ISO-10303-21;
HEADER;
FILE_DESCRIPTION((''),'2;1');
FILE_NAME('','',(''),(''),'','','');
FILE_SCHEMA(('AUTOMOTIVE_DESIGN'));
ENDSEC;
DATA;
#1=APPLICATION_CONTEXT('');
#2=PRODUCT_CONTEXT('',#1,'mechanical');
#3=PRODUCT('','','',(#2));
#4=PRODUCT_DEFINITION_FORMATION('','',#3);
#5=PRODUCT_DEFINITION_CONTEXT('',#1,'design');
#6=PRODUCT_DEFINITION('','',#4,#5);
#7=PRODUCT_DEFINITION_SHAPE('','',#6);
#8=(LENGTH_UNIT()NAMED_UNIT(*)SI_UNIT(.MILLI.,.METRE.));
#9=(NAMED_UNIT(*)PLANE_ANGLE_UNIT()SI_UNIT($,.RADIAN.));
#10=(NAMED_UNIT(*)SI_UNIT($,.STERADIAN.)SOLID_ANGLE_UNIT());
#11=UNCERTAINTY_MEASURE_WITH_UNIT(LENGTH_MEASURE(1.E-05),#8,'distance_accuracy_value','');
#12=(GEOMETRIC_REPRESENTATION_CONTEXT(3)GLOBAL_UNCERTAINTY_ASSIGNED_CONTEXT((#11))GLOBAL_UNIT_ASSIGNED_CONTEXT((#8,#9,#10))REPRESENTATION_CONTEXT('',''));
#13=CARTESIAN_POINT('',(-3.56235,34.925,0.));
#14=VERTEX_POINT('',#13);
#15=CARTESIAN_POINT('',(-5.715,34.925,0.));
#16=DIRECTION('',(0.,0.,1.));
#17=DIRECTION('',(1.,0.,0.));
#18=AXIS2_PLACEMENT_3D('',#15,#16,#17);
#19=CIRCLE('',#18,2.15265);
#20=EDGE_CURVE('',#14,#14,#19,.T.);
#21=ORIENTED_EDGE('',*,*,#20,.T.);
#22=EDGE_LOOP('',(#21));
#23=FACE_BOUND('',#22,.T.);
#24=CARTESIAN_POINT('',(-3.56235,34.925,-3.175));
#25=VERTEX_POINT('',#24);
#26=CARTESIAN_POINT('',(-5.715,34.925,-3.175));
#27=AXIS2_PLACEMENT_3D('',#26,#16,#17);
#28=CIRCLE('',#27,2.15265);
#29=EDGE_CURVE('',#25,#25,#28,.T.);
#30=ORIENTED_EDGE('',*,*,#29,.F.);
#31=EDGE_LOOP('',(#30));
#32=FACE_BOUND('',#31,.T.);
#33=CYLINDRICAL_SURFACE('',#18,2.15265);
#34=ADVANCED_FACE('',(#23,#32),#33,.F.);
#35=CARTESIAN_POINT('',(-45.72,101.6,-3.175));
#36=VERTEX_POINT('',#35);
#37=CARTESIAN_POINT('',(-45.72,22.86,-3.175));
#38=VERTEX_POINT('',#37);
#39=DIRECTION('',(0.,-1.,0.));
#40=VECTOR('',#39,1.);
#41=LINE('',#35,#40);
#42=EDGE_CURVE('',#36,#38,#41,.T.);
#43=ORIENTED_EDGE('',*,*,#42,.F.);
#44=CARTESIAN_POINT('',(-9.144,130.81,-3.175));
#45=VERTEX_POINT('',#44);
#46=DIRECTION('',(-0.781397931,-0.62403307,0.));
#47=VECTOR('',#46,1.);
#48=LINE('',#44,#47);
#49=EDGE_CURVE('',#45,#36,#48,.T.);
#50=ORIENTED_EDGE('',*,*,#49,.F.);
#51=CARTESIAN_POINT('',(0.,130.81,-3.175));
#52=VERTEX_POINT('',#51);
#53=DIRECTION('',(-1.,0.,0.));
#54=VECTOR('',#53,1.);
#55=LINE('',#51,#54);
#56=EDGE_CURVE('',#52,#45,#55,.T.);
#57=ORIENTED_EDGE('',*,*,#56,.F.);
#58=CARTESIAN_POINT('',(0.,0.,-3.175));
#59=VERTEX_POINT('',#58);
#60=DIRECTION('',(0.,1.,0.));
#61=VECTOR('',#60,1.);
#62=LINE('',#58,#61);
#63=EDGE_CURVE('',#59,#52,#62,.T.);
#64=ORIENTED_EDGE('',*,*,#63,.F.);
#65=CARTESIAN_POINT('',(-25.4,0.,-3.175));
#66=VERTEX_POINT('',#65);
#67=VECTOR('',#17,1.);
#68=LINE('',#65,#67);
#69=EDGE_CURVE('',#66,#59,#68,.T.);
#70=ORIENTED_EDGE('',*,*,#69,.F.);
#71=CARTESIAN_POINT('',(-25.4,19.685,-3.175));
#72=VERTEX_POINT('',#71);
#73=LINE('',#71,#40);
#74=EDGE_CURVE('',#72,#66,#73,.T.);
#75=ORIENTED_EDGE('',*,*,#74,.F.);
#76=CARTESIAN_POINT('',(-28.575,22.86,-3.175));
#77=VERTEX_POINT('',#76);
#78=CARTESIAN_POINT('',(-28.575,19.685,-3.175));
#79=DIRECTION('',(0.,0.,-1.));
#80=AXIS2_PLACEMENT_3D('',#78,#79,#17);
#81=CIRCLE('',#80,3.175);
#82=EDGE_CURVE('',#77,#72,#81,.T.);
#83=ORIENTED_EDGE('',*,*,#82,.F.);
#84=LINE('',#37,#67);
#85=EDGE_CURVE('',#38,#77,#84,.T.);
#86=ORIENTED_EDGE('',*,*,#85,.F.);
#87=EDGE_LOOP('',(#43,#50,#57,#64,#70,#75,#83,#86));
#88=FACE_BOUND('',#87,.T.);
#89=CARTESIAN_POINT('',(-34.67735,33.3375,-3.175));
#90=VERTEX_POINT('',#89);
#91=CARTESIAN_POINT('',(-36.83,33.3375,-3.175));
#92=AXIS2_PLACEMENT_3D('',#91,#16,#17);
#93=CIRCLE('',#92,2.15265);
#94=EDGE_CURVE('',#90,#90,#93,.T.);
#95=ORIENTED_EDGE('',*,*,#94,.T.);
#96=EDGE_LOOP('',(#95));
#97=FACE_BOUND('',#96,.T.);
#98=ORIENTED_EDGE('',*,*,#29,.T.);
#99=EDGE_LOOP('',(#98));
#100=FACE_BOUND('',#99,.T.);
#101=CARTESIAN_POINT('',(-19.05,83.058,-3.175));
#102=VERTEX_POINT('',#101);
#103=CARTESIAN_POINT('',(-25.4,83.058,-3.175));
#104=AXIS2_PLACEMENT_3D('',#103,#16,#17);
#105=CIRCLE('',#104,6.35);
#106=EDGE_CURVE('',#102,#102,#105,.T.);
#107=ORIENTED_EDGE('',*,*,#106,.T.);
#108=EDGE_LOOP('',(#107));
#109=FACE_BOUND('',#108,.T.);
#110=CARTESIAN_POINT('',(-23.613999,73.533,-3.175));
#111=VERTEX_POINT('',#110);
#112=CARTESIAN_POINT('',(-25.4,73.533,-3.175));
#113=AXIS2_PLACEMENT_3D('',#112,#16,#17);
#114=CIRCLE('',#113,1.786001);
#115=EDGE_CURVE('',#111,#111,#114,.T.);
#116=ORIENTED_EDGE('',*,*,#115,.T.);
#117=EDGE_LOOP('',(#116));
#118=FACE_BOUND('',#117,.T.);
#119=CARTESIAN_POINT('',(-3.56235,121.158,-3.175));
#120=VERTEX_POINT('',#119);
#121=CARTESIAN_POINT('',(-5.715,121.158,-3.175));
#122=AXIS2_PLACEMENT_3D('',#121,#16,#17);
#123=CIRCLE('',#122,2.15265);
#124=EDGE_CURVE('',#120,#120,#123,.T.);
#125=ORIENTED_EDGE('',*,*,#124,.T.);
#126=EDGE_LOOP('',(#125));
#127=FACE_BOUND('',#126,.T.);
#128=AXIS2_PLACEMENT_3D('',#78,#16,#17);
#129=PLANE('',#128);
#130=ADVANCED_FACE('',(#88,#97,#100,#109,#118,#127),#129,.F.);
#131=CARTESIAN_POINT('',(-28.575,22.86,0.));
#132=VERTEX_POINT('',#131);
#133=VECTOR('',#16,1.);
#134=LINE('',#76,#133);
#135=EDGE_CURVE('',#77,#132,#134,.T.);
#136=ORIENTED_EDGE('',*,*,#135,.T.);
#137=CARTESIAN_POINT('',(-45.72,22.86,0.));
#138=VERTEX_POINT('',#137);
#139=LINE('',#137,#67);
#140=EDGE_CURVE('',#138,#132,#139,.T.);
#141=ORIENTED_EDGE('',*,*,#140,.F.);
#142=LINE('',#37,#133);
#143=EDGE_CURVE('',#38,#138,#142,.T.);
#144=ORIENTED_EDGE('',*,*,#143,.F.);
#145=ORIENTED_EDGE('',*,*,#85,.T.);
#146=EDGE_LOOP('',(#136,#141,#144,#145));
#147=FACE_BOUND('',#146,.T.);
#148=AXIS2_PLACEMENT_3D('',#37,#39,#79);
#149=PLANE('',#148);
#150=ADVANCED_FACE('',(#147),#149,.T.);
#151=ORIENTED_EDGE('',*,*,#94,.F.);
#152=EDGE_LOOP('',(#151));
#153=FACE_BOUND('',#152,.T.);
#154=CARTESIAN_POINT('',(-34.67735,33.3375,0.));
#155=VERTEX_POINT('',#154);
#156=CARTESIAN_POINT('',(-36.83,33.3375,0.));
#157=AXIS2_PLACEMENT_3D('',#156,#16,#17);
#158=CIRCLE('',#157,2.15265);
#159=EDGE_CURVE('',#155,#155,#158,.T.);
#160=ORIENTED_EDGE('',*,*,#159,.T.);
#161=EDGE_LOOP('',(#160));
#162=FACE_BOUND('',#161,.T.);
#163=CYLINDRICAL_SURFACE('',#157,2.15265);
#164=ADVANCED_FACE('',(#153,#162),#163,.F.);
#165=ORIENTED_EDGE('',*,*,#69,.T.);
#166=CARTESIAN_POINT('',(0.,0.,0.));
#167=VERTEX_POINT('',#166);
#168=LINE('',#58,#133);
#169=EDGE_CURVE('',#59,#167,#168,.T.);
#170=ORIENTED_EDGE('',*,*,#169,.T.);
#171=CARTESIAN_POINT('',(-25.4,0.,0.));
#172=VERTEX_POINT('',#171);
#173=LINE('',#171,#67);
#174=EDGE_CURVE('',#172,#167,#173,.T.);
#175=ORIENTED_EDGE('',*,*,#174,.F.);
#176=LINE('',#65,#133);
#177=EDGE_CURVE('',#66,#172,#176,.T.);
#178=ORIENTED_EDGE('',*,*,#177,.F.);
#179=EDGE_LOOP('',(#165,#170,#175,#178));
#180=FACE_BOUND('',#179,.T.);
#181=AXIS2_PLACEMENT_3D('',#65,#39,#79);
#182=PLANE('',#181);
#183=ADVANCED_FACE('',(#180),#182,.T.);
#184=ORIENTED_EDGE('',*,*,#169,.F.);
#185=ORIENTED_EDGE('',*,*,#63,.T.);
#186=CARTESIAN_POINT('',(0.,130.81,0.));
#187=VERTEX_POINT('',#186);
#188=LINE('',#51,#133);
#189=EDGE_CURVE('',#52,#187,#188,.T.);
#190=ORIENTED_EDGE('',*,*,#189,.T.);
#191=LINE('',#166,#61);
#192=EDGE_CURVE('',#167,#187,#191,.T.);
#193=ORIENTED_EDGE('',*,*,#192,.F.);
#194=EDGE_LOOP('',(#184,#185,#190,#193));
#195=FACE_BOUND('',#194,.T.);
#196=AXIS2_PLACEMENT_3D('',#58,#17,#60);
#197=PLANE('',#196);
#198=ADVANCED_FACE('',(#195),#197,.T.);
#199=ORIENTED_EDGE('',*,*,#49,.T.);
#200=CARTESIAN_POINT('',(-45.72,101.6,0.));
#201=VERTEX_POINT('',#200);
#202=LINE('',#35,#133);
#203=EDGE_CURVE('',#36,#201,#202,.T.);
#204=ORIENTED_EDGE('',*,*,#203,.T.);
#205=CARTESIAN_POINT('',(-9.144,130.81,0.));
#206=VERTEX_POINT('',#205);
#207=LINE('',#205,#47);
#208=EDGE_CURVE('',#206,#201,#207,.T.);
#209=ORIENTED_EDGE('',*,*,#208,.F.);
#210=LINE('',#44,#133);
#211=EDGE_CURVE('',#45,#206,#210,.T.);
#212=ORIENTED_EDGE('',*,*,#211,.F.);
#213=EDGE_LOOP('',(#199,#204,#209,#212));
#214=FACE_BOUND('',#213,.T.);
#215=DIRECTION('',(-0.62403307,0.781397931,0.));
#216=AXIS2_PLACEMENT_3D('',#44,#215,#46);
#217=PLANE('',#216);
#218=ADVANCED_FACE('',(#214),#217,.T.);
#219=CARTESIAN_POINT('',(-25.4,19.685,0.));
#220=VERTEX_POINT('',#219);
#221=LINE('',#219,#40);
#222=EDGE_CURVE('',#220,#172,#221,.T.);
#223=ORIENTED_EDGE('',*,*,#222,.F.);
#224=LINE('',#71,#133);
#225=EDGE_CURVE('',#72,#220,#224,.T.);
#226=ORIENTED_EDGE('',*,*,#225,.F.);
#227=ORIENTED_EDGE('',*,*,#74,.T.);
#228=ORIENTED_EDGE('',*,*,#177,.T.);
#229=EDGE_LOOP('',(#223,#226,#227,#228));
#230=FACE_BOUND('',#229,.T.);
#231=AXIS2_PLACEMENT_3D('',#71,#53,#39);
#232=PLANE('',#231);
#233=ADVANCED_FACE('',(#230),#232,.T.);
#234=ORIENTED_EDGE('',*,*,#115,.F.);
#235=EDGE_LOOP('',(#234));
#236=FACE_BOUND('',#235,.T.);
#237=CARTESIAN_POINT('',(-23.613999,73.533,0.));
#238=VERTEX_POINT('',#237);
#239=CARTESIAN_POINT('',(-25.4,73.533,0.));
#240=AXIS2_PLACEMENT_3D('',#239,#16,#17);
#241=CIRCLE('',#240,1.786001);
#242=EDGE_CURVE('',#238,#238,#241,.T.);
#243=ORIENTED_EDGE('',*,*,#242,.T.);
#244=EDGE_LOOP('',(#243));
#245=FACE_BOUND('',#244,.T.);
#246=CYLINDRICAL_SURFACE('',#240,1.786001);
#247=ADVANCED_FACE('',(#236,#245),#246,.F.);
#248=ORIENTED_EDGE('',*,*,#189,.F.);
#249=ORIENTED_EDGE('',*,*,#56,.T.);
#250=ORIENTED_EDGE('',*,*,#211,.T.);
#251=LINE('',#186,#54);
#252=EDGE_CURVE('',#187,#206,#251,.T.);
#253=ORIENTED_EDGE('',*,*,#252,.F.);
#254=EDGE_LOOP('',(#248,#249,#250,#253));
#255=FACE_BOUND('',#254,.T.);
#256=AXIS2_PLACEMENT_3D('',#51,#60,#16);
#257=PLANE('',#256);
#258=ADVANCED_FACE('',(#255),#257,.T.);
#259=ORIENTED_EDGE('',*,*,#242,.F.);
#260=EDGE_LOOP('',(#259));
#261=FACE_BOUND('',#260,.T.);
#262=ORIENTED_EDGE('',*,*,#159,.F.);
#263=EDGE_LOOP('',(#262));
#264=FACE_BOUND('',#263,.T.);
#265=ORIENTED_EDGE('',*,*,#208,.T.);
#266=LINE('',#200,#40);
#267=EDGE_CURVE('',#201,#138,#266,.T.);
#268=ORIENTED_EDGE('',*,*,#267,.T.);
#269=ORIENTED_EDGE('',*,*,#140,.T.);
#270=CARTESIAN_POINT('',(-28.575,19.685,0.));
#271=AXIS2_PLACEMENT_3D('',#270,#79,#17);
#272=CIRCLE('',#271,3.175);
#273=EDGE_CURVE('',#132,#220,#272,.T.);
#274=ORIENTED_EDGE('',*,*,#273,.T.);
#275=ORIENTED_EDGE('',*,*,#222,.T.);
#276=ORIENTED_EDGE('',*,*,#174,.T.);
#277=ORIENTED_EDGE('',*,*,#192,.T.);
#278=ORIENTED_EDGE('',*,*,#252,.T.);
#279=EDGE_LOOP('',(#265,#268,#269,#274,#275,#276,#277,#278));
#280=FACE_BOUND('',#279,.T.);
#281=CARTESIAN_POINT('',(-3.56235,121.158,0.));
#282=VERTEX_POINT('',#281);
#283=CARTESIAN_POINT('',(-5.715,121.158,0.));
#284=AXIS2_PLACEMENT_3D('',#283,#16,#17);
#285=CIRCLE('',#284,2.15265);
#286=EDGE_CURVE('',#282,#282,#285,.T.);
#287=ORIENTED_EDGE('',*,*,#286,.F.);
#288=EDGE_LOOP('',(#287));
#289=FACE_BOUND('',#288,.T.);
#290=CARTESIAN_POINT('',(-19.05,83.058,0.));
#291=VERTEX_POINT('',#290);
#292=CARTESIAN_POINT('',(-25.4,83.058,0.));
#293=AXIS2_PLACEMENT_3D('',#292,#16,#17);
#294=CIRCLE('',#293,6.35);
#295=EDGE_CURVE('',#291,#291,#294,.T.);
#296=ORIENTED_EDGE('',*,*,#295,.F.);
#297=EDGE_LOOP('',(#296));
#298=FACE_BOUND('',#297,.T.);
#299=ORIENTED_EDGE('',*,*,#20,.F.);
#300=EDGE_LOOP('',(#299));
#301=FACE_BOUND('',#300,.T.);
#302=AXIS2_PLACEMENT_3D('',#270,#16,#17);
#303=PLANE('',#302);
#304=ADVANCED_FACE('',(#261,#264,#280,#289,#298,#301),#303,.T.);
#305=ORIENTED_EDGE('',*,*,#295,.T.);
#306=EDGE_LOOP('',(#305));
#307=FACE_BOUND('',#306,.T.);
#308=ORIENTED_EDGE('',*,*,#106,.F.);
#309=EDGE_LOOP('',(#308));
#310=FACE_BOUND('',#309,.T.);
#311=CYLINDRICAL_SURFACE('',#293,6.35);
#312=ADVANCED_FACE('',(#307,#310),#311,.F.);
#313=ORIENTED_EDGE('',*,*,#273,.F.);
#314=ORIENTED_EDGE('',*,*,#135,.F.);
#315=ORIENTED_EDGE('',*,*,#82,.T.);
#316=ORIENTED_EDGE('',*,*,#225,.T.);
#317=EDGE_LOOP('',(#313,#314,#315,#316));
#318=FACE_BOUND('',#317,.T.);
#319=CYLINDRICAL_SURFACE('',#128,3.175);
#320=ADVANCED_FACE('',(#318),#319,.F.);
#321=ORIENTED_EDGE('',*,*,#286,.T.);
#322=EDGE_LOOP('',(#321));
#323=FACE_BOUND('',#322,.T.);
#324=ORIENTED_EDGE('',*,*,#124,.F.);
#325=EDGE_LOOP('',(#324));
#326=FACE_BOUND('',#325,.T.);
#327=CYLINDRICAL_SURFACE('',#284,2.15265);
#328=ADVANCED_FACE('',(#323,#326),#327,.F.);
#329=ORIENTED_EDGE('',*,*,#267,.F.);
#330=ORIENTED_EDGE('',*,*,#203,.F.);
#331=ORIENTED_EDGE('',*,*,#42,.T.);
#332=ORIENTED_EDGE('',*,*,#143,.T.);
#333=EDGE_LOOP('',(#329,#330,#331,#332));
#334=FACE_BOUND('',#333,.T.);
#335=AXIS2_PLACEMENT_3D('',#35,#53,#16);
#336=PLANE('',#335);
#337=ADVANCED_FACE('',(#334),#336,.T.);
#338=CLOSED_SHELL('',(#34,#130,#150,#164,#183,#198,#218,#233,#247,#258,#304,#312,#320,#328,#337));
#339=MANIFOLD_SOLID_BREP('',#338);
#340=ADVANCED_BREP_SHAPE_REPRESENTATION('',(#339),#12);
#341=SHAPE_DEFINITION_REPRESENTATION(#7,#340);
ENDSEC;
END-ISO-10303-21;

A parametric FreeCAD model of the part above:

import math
import FreeCAD as App
import Part
import Sketcher

V = App.Vector
Q = App.Units.Quantity

doc = App.newDocument("Part")
body = doc.addObject("PartDesign::Body", "Body")

# Sketch on XY plane
sketch1 = body.newObject("Sketcher::SketchObject", "Sketch")
sketch1.AttachmentSupport = (doc.getObject("XY_Plane"), [""])
sketch1.MapMode = "FlatFace"
sketch1.addGeometry(Part.LineSegment(V(-25.4, 0, 0), V(0, 0, 0)), False)
sketch1.addGeometry(Part.LineSegment(V(0, 0, 0), V(0, 130.8, 0)), False)
sketch1.addGeometry(Part.LineSegment(V(0, 130.8, 0), V(-9.1, 130.8, 0)), False)
sketch1.addGeometry(Part.LineSegment(V(-9.1, 130.8, 0), V(-45.7, 101.6, 0)), False)
sketch1.addGeometry(Part.LineSegment(V(-45.7, 101.6, 0), V(-45.7, 22.9, 0)), False)
sketch1.addGeometry(Part.LineSegment(V(-45.7, 22.9, 0), V(-28.6, 22.9, 0)), False)
sketch1.addGeometry(Part.ArcOfCircle(Part.Circle(V(-28.6, 19.7, 0), V(0, 0, 1), 3.2), math.radians(0), math.radians(90)), False)
sketch1.addGeometry(Part.LineSegment(V(-25.4, 19.7, 0), V(-25.4, 0, 0)), False)
sketch1.addConstraint(Sketcher.Constraint("Coincident", 0, 2, 1, 1))
sketch1.addConstraint(Sketcher.Constraint("Coincident", 1, 2, 2, 1))
sketch1.addConstraint(Sketcher.Constraint("Coincident", 2, 2, 3, 1))
sketch1.addConstraint(Sketcher.Constraint("Coincident", 3, 2, 4, 1))
sketch1.addConstraint(Sketcher.Constraint("Coincident", 4, 2, 5, 1))
sketch1.addConstraint(Sketcher.Constraint("Tangent", 5, 2, 6, 2))
sketch1.addConstraint(Sketcher.Constraint("Tangent", 6, 1, 7, 1))
sketch1.addConstraint(Sketcher.Constraint("Coincident", 7, 2, 0, 1))
sketch1.addConstraint(Sketcher.Constraint("Horizontal", 0))
sketch1.addConstraint(Sketcher.Constraint("Vertical", 1))
sketch1.addConstraint(Sketcher.Constraint("Horizontal", 2))
sketch1.addConstraint(Sketcher.Constraint("Vertical", 4))
sketch1.addConstraint(Sketcher.Constraint("Horizontal", 5))
sketch1.addConstraint(Sketcher.Constraint("Vertical", 7))
sketch1.addConstraint(Sketcher.Constraint("Coincident", 0, 2, -1, 1))
sketch1.addConstraint(Sketcher.Constraint("DistanceX", 0, 1, 0, 2, Q("1 in")))
sketch1.addConstraint(Sketcher.Constraint("DistanceY", 4, 2, 4, 1, Q("3.1 in")))
sketch1.addConstraint(Sketcher.Constraint("DistanceY", -1, 1, 3, 2, Q("4 in")))
sketch1.addConstraint(Sketcher.Constraint("Radius", 6, Q("0.125 in")))
sketch1.addConstraint(Sketcher.Constraint("DistanceX", 2, 2, 2, 1, Q("0.36 in")))
sketch1.addConstraint(Sketcher.Constraint("DistanceY", 1, 1, 1, 2, Q("5.15 in")))
sketch1.addConstraint(Sketcher.Constraint("DistanceX", 3, 2, -1, 1, Q("1.8 in")))
pad1 = body.newObject("PartDesign::Pad", "Pad")
pad1.Profile = sketch1
pad1.Length = Q("0.125 in")
pad1.Reversed = True

# Sketch on XY plane
sketch2 = body.newObject("Sketcher::SketchObject", "Sketch001")
sketch2.AttachmentSupport = (doc.getObject("XY_Plane"), [""])
sketch2.MapMode = "FlatFace"
sketch2.addGeometry(Part.Circle(V(-5.7, 34.9, 0), V(0, 0, 1), 2.2), False)
sketch2.addGeometry(Part.Circle(V(-36.8, 33.3, 0), V(0, 0, 1), 2.2), False)
sketch2.addGeometry(Part.Circle(V(-5.7, 121.2, 0), V(0, 0, 1), 2.2), False)
sketch2.addConstraint(Sketcher.Constraint("Equal", 0, 1))
sketch2.addConstraint(Sketcher.Constraint("Equal", 1, 2))
sketch2.addConstraint(Sketcher.Constraint("Vertical", 0, 3, 2, 3))
sketch2.addConstraint(Sketcher.Constraint("Diameter", 0, Q("0.1695 in")))
sketch2.addConstraint(Sketcher.Constraint("DistanceX", 1, 3, -1, 1, Q("1.45 in")))
sketch2.addConstraint(Sketcher.Constraint("DistanceY", -1, 1, 2, 3, Q("4.77 in")))
sketch2.addConstraint(Sketcher.Constraint("DistanceX", 0, 3, -1, 1, Q("0.225 in")))
sketch2.addConstraint(Sketcher.Constraint("DistanceY", -1, 1, 0, 3, Q("1.375 in")))
sketch2.addConstraint(Sketcher.Constraint("DistanceY", -1, 1, 1, 3, Q("1.3125 in")))
doc.recompute()
hole = body.newObject("PartDesign::Hole", "Hole")
hole.Profile = sketch2
hole.ThreadType = "None"
hole.Diameter = Q("0.1695 in")
hole.DepthType = "ThroughAll"

# Sketch on XY plane
sketch3 = body.newObject("Sketcher::SketchObject", "Sketch002")
sketch3.AttachmentSupport = (doc.getObject("XY_Plane"), [""])
sketch3.MapMode = "FlatFace"
sketch3.addGeometry(Part.Circle(V(-25, 83, 0), V(0, 0, 1), 6), False)
sketch3.addConstraint(Sketcher.Constraint("Diameter", 0, Q("0.5 in")))
sketch3.addConstraint(Sketcher.Constraint("DistanceX", 0, 3, -1, 1, Q("1 in")))
sketch3.addConstraint(Sketcher.Constraint("DistanceY", -1, 1, 0, 3, Q("3.27 in")))
doc.recompute()
hole2 = body.newObject("PartDesign::Hole", "Hole001")
hole2.Profile = sketch3
hole2.ThreadType = "None"
hole2.Diameter = Q("0.5 in")
hole2.DepthType = "ThroughAll"

# Sketch on XY plane
sketch4 = body.newObject("Sketcher::SketchObject", "Sketch003")
sketch4.AttachmentSupport = (doc.getObject("XY_Plane"), [""])
sketch4.MapMode = "FlatFace"
sketch4.addGeometry(Part.Circle(V(-25.4, 73.5, 0), V(0, 0, 1), 1.8), False)
sketch4.addConstraint(Sketcher.Constraint("DistanceX", 0, 3, -1, 1, Q("1 in")))
sketch4.addConstraint(Sketcher.Constraint("Diameter", 0, 3.572002))
sketch4.addConstraint(Sketcher.Constraint("DistanceY", -1, 1, 0, 3, Q("2.895 in")))
doc.recompute()
hole3 = body.newObject("PartDesign::Hole", "Hole002")
hole3.Profile = sketch4
hole3.ThreadType = "None"
hole3.Diameter = 3.572002
hole3.DepthType = "ThroughAll"

doc.recompute()
